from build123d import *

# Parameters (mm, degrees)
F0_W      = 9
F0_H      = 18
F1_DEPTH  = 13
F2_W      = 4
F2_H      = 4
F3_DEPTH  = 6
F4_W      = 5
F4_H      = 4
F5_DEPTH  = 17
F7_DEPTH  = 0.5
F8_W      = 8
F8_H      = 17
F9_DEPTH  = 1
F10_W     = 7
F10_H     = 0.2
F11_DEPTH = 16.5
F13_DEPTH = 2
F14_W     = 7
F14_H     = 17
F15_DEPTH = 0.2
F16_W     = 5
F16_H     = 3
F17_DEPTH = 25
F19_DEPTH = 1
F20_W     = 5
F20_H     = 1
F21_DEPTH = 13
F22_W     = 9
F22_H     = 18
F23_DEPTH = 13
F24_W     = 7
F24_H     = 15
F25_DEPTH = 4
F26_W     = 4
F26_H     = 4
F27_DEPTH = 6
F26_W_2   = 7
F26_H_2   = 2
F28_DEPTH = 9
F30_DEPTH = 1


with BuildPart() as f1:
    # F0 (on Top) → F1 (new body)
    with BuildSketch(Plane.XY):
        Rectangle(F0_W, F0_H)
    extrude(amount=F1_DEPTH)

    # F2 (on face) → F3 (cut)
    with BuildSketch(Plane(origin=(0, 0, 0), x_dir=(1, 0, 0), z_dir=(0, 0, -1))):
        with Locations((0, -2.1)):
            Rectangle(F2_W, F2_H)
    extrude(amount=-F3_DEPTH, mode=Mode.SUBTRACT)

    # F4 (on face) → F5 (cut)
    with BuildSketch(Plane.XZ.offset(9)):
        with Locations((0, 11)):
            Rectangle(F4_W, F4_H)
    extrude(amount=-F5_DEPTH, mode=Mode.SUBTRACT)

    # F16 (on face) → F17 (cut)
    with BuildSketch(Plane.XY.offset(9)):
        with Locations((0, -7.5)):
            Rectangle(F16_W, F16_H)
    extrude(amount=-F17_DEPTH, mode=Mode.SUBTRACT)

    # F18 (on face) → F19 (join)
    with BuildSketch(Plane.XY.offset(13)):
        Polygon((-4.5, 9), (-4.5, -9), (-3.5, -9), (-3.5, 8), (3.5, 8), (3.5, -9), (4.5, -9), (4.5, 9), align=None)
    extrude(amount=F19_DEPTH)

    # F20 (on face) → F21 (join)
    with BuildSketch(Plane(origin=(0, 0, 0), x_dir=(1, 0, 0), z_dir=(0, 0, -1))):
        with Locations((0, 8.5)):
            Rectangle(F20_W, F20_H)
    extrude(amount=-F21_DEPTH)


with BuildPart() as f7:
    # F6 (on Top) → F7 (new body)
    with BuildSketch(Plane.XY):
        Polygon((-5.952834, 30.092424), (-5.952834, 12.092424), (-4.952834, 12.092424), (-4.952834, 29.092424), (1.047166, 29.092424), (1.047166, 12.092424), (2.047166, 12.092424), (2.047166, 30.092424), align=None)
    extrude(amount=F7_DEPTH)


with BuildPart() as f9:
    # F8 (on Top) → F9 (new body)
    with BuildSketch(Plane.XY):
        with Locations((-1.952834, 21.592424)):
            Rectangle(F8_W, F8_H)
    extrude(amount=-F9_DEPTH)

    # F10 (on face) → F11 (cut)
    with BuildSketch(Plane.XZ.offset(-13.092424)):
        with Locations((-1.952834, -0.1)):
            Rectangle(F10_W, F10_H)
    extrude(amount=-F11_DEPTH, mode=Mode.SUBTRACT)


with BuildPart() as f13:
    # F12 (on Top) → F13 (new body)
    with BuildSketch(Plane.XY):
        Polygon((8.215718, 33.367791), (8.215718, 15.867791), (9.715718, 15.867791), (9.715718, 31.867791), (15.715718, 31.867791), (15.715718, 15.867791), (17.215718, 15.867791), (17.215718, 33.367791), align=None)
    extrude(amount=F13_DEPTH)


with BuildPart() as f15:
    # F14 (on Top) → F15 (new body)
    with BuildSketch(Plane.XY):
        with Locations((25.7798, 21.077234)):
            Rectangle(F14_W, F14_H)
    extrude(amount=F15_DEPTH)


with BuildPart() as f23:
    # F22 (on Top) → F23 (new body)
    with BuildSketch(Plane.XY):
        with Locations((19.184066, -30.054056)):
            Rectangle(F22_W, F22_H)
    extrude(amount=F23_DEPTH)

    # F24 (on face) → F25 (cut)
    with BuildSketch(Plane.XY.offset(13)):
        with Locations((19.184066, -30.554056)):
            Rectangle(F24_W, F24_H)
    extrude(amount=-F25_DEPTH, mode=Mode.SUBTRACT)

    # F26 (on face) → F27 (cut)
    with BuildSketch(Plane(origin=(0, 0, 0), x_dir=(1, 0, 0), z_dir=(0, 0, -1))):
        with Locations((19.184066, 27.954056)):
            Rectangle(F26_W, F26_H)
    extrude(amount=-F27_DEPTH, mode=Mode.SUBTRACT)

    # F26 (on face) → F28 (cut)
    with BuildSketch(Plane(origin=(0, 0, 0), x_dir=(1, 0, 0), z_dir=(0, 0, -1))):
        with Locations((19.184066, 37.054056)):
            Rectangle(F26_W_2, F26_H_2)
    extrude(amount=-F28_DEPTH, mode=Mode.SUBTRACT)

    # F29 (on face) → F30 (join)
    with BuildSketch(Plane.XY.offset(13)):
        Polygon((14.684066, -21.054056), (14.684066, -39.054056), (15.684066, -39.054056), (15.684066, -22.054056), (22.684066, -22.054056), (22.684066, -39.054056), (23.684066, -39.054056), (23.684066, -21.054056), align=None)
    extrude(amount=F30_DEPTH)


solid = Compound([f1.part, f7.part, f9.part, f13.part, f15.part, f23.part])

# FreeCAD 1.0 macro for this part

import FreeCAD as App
import Part
import Sketcher
from FreeCAD import Vector

doc = App.newDocument("Part")
body = doc.addObject("PartDesign::Body", "Body")

sketch1 = doc.addObject("Sketcher::SketchObject", "Sketch")
body.addObject(sketch1)
sketch1.AttachmentSupport = (doc.XY_Plane, [""])
sketch1.MapMode = "FlatFace"
sketch1.addGeometry([
    Part.LineSegment(Vector(-4, 9, 0), Vector(-4, -9, 0)),
    Part.LineSegment(Vector(-4, -9, 0), Vector(4, -9, 0)),
    Part.LineSegment(Vector(4, -9, 0), Vector(4, 9, 0)),
    Part.LineSegment(Vector(4, 9, 0), Vector(-4, 9, 0)),
], False)
sketch1.addConstraint([
    Sketcher.Constraint("Coincident", 0, 2, 1, 1),
    Sketcher.Constraint("Coincident", 1, 2, 2, 1),
    Sketcher.Constraint("Coincident", 2, 2, 3, 1),
    Sketcher.Constraint("Coincident", 3, 2, 0, 1),
    Sketcher.Constraint("Vertical", 0),
    Sketcher.Constraint("Horizontal", 1),
    Sketcher.Constraint("Vertical", 2),
    Sketcher.Constraint("Horizontal", 3),
    Sketcher.Constraint("Symmetric", 0, 2, 2, 2, -1, 1),
    Sketcher.Constraint("DistanceX", 1, 1, 1, 2, 9.0),
    Sketcher.Constraint("DistanceY", 0, 2, 0, 1, 18.0),
])
pad1 = doc.addObject("PartDesign::Pad", "Pad")
body.addObject(pad1)
pad1.Profile = sketch1
pad1.Length = 13

sketch2 = doc.addObject("Sketcher::SketchObject", "Sketch001")
body.addObject(sketch2)
sketch2.AttachmentSupport = (doc.XY_Plane, [""])
sketch2.MapMode = "FlatFace"
sketch2.addGeometry([
    Part.LineSegment(Vector(-2, 0.1, 0), Vector(-2, 4.1, 0)),
    Part.LineSegment(Vector(-2, 4.1, 0), Vector(2, 4.1, 0)),
    Part.LineSegment(Vector(2, 4.1, 0), Vector(2, 0.1, 0)),
    Part.LineSegment(Vector(2, 0.1, 0), Vector(-2, 0.1, 0)),
], False)
sketch2.addConstraint([
    Sketcher.Constraint("Coincident", 0, 2, 1, 1),
    Sketcher.Constraint("Coincident", 1, 2, 2, 1),
    Sketcher.Constraint("Coincident", 2, 2, 3, 1),
    Sketcher.Constraint("Coincident", 3, 2, 0, 1),
    Sketcher.Constraint("Vertical", 0),
    Sketcher.Constraint("Horizontal", 1),
    Sketcher.Constraint("Vertical", 2),
    Sketcher.Constraint("Horizontal", 3),
    Sketcher.Constraint("Equal", 3, 0),
    Sketcher.Constraint("DistanceX", 1, 1, 1, 2, 4.0),
    Sketcher.Constraint("DistanceX", 0, 2, -1, 1, 2.0),
    Sketcher.Constraint("DistanceY", -1, 1, 0, 2, 4.1),
])
pocket1 = doc.addObject("PartDesign::Pocket", "Pocket")
body.addObject(pocket1)
pocket1.Profile = sketch2
pocket1.Length = 6
pocket1.Reversed = True

sketch3 = doc.addObject("Sketcher::SketchObject", "Sketch002")
body.addObject(sketch3)
sketch3.AttachmentSupport = (doc.XZ_Plane, [""])
sketch3.MapMode = "FlatFace"
sketch3.AttachmentOffset = App.Placement(Vector(0, 0, 9), App.Rotation())
sketch3.addGeometry([
    Part.LineSegment(Vector(-2.5, 13, 0), Vector(-2.5, 9, 0)),
    Part.LineSegment(Vector(-2.5, 9, 0), Vector(2.5, 9, 0)),
    Part.LineSegment(Vector(2.5, 9, 0), Vector(2.5, 13, 0)),
    Part.LineSegment(Vector(2.5, 13, 0), Vector(-2.5, 13, 0)),
], False)
sketch3.addConstraint([
    Sketcher.Constraint("Coincident", 0, 2, 1, 1),
    Sketcher.Constraint("Coincident", 1, 2, 2, 1),
    Sketcher.Constraint("Coincident", 2, 2, 3, 1),
    Sketcher.Constraint("Coincident", 3, 2, 0, 1),
    Sketcher.Constraint("Vertical", 0),
    Sketcher.Constraint("Horizontal", 1),
    Sketcher.Constraint("Vertical", 2),
    Sketcher.Constraint("Horizontal", 3),
    Sketcher.Constraint("DistanceX", 1, 1, 1, 2, 5.0),
    Sketcher.Constraint("DistanceY", 0, 2, 0, 1, 4.0),
    Sketcher.Constraint("DistanceY", -1, 1, 0, 2, 9.0),
    Sketcher.Constraint("DistanceX", 0, 2, -1, 1, 2.5),
])
pocket2 = doc.addObject("PartDesign::Pocket", "Pocket001")
body.addObject(pocket2)
pocket2.Profile = sketch3
pocket2.Length = 17

sketch4 = doc.addObject("Sketcher::SketchObject", "Sketch003")
body.addObject(sketch4)
sketch4.AttachmentSupport = (doc.XY_Plane, [""])
sketch4.MapMode = "FlatFace"
sketch4.AttachmentOffset = App.Placement(Vector(0, 0, 9), App.Rotation())
sketch4.addGeometry([
    Part.LineSegment(Vector(-2.5, -6, 0), Vector(-2.5, -9, 0)),
    Part.LineSegment(Vector(-2.5, -9, 0), Vector(2.5, -9, 0)),
    Part.LineSegment(Vector(2.5, -9, 0), Vector(2.5, -6, 0)),
    Part.LineSegment(Vector(2.5, -6, 0), Vector(-2.5, -6, 0)),
], False)
sketch4.addConstraint([
    Sketcher.Constraint("Coincident", 0, 2, 1, 1),
    Sketcher.Constraint("Coincident", 1, 2, 2, 1),
    Sketcher.Constraint("Coincident", 2, 2, 3, 1),
    Sketcher.Constraint("Coincident", 3, 2, 0, 1),
    Sketcher.Constraint("Vertical", 0),
    Sketcher.Constraint("Horizontal", 1),
    Sketcher.Constraint("Vertical", 2),
    Sketcher.Constraint("Horizontal", 3),
    Sketcher.Constraint("DistanceX", 1, 1, 1, 2, 5.0),
    Sketcher.Constraint("DistanceY", 0, 2, 0, 1, 3.0),
    Sketcher.Constraint("DistanceY", 0, 2, -1, 1, 9.0),
    Sketcher.Constraint("DistanceX", 0, 2, -1, 1, 2.5),
])
pocket3 = doc.addObject("PartDesign::Pocket", "Pocket002")
body.addObject(pocket3)
pocket3.Profile = sketch4
pocket3.Length = 25

sketch5 = doc.addObject("Sketcher::SketchObject", "Sketch004")
body.addObject(sketch5)
sketch5.AttachmentSupport = (doc.XY_Plane, [""])
sketch5.MapMode = "FlatFace"
sketch5.AttachmentOffset = App.Placement(Vector(0, 0, 13), App.Rotation())
sketch5.addGeometry([
    Part.LineSegment(Vector(-4.5, 9, 0), Vector(-4.5, -9, 0)),
    Part.LineSegment(Vector(-4.5, -9, 0), Vector(-3.5, -9, 0)),
    Part.LineSegment(Vector(-3.5, -9, 0), Vector(-3.5, 8, 0)),
    Part.LineSegment(Vector(-3.5, 8, 0), Vector(3.5, 8, 0)),
    Part.LineSegment(Vector(3.5, 8, 0), Vector(3.5, -9, 0)),
    Part.LineSegment(Vector(3.5, -9, 0), Vector(4.5, -9, 0)),
    Part.LineSegment(Vector(4.5, -9, 0), Vector(4.5, 9, 0)),
    Part.LineSegment(Vector(4.5, 9, 0), Vector(-4.5, 9, 0)),
], False)
sketch5.addConstraint([
    Sketcher.Constraint("Coincident", 0, 2, 1, 1),
    Sketcher.Constraint("Coincident", 1, 2, 2, 1),
    Sketcher.Constraint("Coincident", 2, 2, 3, 1),
    Sketcher.Constraint("Coincident", 3, 2, 4, 1),
    Sketcher.Constraint("Coincident", 4, 2, 5, 1),
    Sketcher.Constraint("Coincident", 5, 2, 6, 1),
    Sketcher.Constraint("Coincident", 6, 2, 7, 1),
    Sketcher.Constraint("Coincident", 7, 2, 0, 1),
    Sketcher.Constraint("Vertical", 0),
    Sketcher.Constraint("Horizontal", 1),
    Sketcher.Constraint("Vertical", 2),
    Sketcher.Constraint("Horizontal", 3),
    Sketcher.Constraint("Vertical", 4),
    Sketcher.Constraint("Horizontal", 5),
    Sketcher.Constraint("Vertical", 6),
    Sketcher.Constraint("Horizontal", 7),
    Sketcher.Constraint("Symmetric", 0, 2, 6, 2, -1, 1),
    Sketcher.Constraint("Symmetric", 1, 2, 4, 2, -2),
    Sketcher.Constraint("DistanceX", 1, 1, 1, 2, 1.0),
    Sketcher.Constraint("DistanceX", 3, 1, 3, 2, 7.0),
    Sketcher.Constraint("DistanceY", 0, 2, 0, 1, 18.0),
    Sketcher.Constraint("DistanceY", 2, 1, 2, 2, 17.0),
])
pad2 = doc.addObject("PartDesign::Pad", "Pad001")
body.addObject(pad2)
pad2.Profile = sketch5
pad2.Length = 1

sketch6 = doc.addObject("Sketcher::SketchObject", "Sketch005")
body.addObject(sketch6)
sketch6.AttachmentSupport = (doc.XY_Plane, [""])
sketch6.MapMode = "FlatFace"
sketch6.addGeometry([
    Part.LineSegment(Vector(-2.5, -9, 0), Vector(-2.5, -8, 0)),
    Part.LineSegment(Vector(-2.5, -8, 0), Vector(2.5, -8, 0)),
    Part.LineSegment(Vector(2.5, -8, 0), Vector(2.5, -9, 0)),
    Part.LineSegment(Vector(2.5, -9, 0), Vector(-2.5, -9, 0)),
], False)
sketch6.addConstraint([
    Sketcher.Constraint("Coincident", 0, 2, 1, 1),
    Sketcher.Constraint("Coincident", 1, 2, 2, 1),
    Sketcher.Constraint("Coincident", 2, 2, 3, 1),
    Sketcher.Constraint("Coincident", 3, 2, 0, 1),
    Sketcher.Constraint("Vertical", 0),
    Sketcher.Constraint("Horizontal", 1),
    Sketcher.Constraint("Vertical", 2),
    Sketcher.Constraint("Horizontal", 3),
    Sketcher.Constraint("DistanceX", 1, 1, 1, 2, 5.0),
    Sketcher.Constraint("DistanceY", 0, 1, 0, 2, 1.0),
    Sketcher.Constraint("DistanceY", 0, 2, -1, 1, 8.0),
    Sketcher.Constraint("DistanceX", 0, 2, -1, 1, 2.5),
])
pad3 = doc.addObject("PartDesign::Pad", "Pad002")
body.addObject(pad3)
pad3.Profile = sketch6
pad3.Length = 13
body2 = doc.addObject("PartDesign::Body", "Body001")

sketch7 = doc.addObject("Sketcher::SketchObject", "Sketch006")
body2.addObject(sketch7)
sketch7.AttachmentSupport = (doc.getObject("XY_Plane001"), [""])
sketch7.MapMode = "FlatFace"
sketch7.addGeometry([
    Part.LineSegment(Vector(-6, 30.1, 0), Vector(-6, 12.1, 0)),
    Part.LineSegment(Vector(-6, 12.1, 0), Vector(-5, 12.1, 0)),
    Part.LineSegment(Vector(-5, 12.1, 0), Vector(-5, 29.1, 0)),
    Part.LineSegment(Vector(-5, 29.1, 0), Vector(1, 29.1, 0)),
    Part.LineSegment(Vector(1, 29.1, 0), Vector(1, 12.1, 0)),
    Part.LineSegment(Vector(1, 12.1, 0), Vector(2, 12.1, 0)),
    Part.LineSegment(Vector(2, 12.1, 0), Vector(2, 30.1, 0)),
    Part.LineSegment(Vector(2, 30.1, 0), Vector(-6, 30.1, 0)),
], False)
sketch7.addConstraint([
    Sketcher.Constraint("Coincident", 0, 2, 1, 1),
    Sketcher.Constraint("Coincident", 1, 2, 2, 1),
    Sketcher.Constraint("Coincident", 2, 2, 3, 1),
    Sketcher.Constraint("Coincident", 3, 2, 4, 1),
    Sketcher.Constraint("Coincident", 4, 2, 5, 1),
    Sketcher.Constraint("Coincident", 5, 2, 6, 1),
    Sketcher.Constraint("Coincident", 6, 2, 7, 1),
    Sketcher.Constraint("Coincident", 7, 2, 0, 1),
    Sketcher.Constraint("Vertical", 0),
    Sketcher.Constraint("Horizontal", 1),
    Sketcher.Constraint("Vertical", 2),
    Sketcher.Constraint("Horizontal", 3),
    Sketcher.Constraint("Vertical", 4),
    Sketcher.Constraint("Horizontal", 5),
    Sketcher.Constraint("Vertical", 6),
    Sketcher.Constraint("Horizontal", 7),
    Sketcher.Constraint("Horizontal", 1, 2, 4, 2),
    Sketcher.Constraint("Equal", 1, 5),
    Sketcher.Constraint("DistanceX", 1, 1, 1, 2, 1.0),
    Sketcher.Constraint("DistanceX", 3, 1, 3, 2, 6.0),
    Sketcher.Constraint("DistanceY", 0, 2, 0, 1, 18.0),
    Sketcher.Constraint("DistanceY", 2, 1, 2, 2, 17.0),
    Sketcher.Constraint("DistanceX", 0, 2, -1, 1, 5.952834),
    Sketcher.Constraint("DistanceY", -1, 1, 0, 2, 12.092424),
])
pad4 = doc.addObject("PartDesign::Pad", "Pad003")
body2.addObject(pad4)
pad4.Profile = sketch7
pad4.Length = 0.5
body3 = doc.addObject("PartDesign::Body", "Body002")

sketch8 = doc.addObject("Sketcher::SketchObject", "Sketch007")
body3.addObject(sketch8)
sketch8.AttachmentSupport = (doc.getObject("XY_Plane002"), [""])
sketch8.MapMode = "FlatFace"
sketch8.addGeometry([
    Part.LineSegment(Vector(-6, 30, 0), Vector(-6, 13, 0)),
    Part.LineSegment(Vector(-6, 13, 0), Vector(2, 13, 0)),
    Part.LineSegment(Vector(2, 13, 0), Vector(2, 30, 0)),
    Part.LineSegment(Vector(2, 30, 0), Vector(-6, 30, 0)),
], False)
sketch8.addConstraint([
    Sketcher.Constraint("Coincident", 0, 2, 1, 1),
    Sketcher.Constraint("Coincident", 1, 2, 2, 1),
    Sketcher.Constraint("Coincident", 2, 2, 3, 1),
    Sketcher.Constraint("Coincident", 3, 2, 0, 1),
    Sketcher.Constraint("Vertical", 0),
    Sketcher.Constraint("Horizontal", 1),
    Sketcher.Constraint("Vertical", 2),
    Sketcher.Constraint("Horizontal", 3),
    Sketcher.Constraint("DistanceX", 1, 1, 1, 2, 8.0),
    Sketcher.Constraint("DistanceY", 0, 2, 0, 1, 17.0),
    Sketcher.Constraint("DistanceX", 0, 2, -1, 1, 5.952834),
    Sketcher.Constraint("DistanceY", -1, 1, 0, 2, 13.092424),
])
pad5 = doc.addObject("PartDesign::Pad", "Pad004")
body3.addObject(pad5)
pad5.Profile = sketch8
pad5.Length = 1
pad5.Reversed = True

sketch9 = doc.addObject("Sketcher::SketchObject", "Sketch008")
body3.addObject(sketch9)
sketch9.AttachmentSupport = (doc.getObject("XZ_Plane002"), [""])
sketch9.MapMode = "FlatFace"
sketch9.AttachmentOffset = App.Placement(Vector(0, 0, -13.092424), App.Rotation())
sketch9.addGeometry([
    Part.LineSegment(Vector(-5.45, 0, 0), Vector(-5.45, -0.2, 0)),
    Part.LineSegment(Vector(-5.45, -0.2, 0), Vector(1.55, -0.2, 0)),
    Part.LineSegment(Vector(1.55, -0.2, 0), Vector(1.55, 0, 0)),
    Part.LineSegment(Vector(1.55, 0, 0), Vector(-5.45, 0, 0)),
], False)
sketch9.addConstraint([
    Sketcher.Constraint("Coincident", 0, 2, 1, 1),
    Sketcher.Constraint("Coincident", 1, 2, 2, 1),
    Sketcher.Constraint("Coincident", 2, 2, 3, 1),
    Sketcher.Constraint("Coincident", 3, 2, 0, 1),
    Sketcher.Constraint("Vertical", 0),
    Sketcher.Constraint("Horizontal", 1),
    Sketcher.Constraint("Vertical", 2),
    Sketcher.Constraint("Horizontal", 3),
    Sketcher.Constraint("PointOnObject", 2, 2, -1),
    Sketcher.Constraint("DistanceX", 1, 1, 1, 2, 7.0),
    Sketcher.Constraint("DistanceY", 0, 2, 0, 1, 0.2),
    Sketcher.Constraint("DistanceX", 0, 2, -1, 1, 5.452834),
])
pocket4 = doc.addObject("PartDesign::Pocket", "Pocket003")
body3.addObject(pocket4)
pocket4.Profile = sketch9
pocket4.Length = 16.5
body4 = doc.addObject("PartDesign::Body", "Body003")

sketch10 = doc.addObject("Sketcher::SketchObject", "Sketch009")
body4.addObject(sketch10)
sketch10.AttachmentSupport = (doc.getObject("XY_Plane003"), [""])
sketch10.MapMode = "FlatFace"
sketch10.addGeometry([
    Part.LineSegment(Vector(8.2, 33.4, 0), Vector(8.2, 15.9, 0)),
    Part.LineSegment(Vector(8.2, 15.9, 0), Vector(9.7, 15.9, 0)),
    Part.LineSegment(Vector(9.7, 15.9, 0), Vector(9.7, 31.9, 0)),
    Part.LineSegment(Vector(9.7, 31.9, 0), Vector(15.7, 31.9, 0)),
    Part.LineSegment(Vector(15.7, 31.9, 0), Vector(15.7, 15.9, 0)),
    Part.LineSegment(Vector(15.7, 15.9, 0), Vector(17.2, 15.9, 0)),
    Part.LineSegment(Vector(17.2, 15.9, 0), Vector(17.2, 33.4, 0)),
    Part.LineSegment(Vector(17.2, 33.4, 0), Vector(8.2, 33.4, 0)),
], False)
sketch10.addConstraint([
    Sketcher.Constraint("Coincident", 0, 2, 1, 1),
    Sketcher.Constraint("Coincident", 1, 2, 2, 1),
    Sketcher.Constraint("Coincident", 2, 2, 3, 1),
    Sketcher.Constraint("Coincident", 3, 2, 4, 1),
    Sketcher.Constraint("Coincident", 4, 2, 5, 1),
    Sketcher.Constraint("Coincident", 5, 2, 6, 1),
    Sketcher.Constraint("Coincident", 6, 2, 7, 1),
    Sketcher.Constraint("Coincident", 7, 2, 0, 1),
    Sketcher.Constraint("Vertical", 0),
    Sketcher.Constraint("Horizontal", 1),
    Sketcher.Constraint("Vertical", 2),
    Sketcher.Constraint("Horizontal", 3),
    Sketcher.Constraint("Vertical", 4),
    Sketcher.Constraint("Horizontal", 5),
    Sketcher.Constraint("Vertical", 6),
    Sketcher.Constraint("Horizontal", 7),
    Sketcher.Constraint("Horizontal", 1, 2, 4, 2),
    Sketcher.Constraint("Equal", 1, 5),
    Sketcher.Constraint("DistanceX", 3, 1, 3, 2, 6.0),
    Sketcher.Constraint("DistanceX", 7, 2, 7, 1, 9.0),
    Sketcher.Constraint("DistanceY", 2, 1, 2, 2, 16.0),
    Sketcher.Constraint("DistanceY", 0, 2, 0, 1, 17.5),
    Sketcher.Constraint("DistanceX", -1, 1, 0, 2, 8.215718),
    Sketcher.Constraint("DistanceY", -1, 1, 0, 2, 15.867791),
])
pad6 = doc.addObject("PartDesign::Pad", "Pad005")
body4.addObject(pad6)
pad6.Profile = sketch10
pad6.Length = 2
body5 = doc.addObject("PartDesign::Body", "Body004")

sketch11 = doc.addObject("Sketcher::SketchObject", "Sketch010")
body5.addObject(sketch11)
sketch11.AttachmentSupport = (doc.getObject("XY_Plane004"), [""])
sketch11.MapMode = "FlatFace"
sketch11.addGeometry([
    Part.LineSegment(Vector(22, 30, 0), Vector(22, 13, 0)),
    Part.LineSegment(Vector(22, 13, 0), Vector(29, 13, 0)),
    Part.LineSegment(Vector(29, 13, 0), Vector(29, 30, 0)),
    Part.LineSegment(Vector(29, 30, 0), Vector(22, 30, 0)),
], False)
sketch11.addConstraint([
    Sketcher.Constraint("Coincident", 0, 2, 1, 1),
    Sketcher.Constraint("Coincident", 1, 2, 2, 1),
    Sketcher.Constraint("Coincident", 2, 2, 3, 1),
    Sketcher.Constraint("Coincident", 3, 2, 0, 1),
    Sketcher.Constraint("Vertical", 0),
    Sketcher.Constraint("Horizontal", 1),
    Sketcher.Constraint("Vertical", 2),
    Sketcher.Constraint("Horizontal", 3),
    Sketcher.Constraint("DistanceX", 1, 1, 1, 2, 7.0),
    Sketcher.Constraint("DistanceY", 0, 2, 0, 1, 17.0),
    Sketcher.Constraint("DistanceX", -1, 1, 0, 2, 22.2798),
    Sketcher.Constraint("DistanceY", -1, 1, 0, 2, 12.577234),
])
pad7 = doc.addObject("PartDesign::Pad", "Pad006")
body5.addObject(pad7)
pad7.Profile = sketch11
pad7.Length = 0.2
body6 = doc.addObject("PartDesign::Body", "Body005")

sketch12 = doc.addObject("Sketcher::SketchObject", "Sketch011")
body6.addObject(sketch12)
sketch12.AttachmentSupport = (doc.getObject("XY_Plane005"), [""])
sketch12.MapMode = "FlatFace"
sketch12.addGeometry([
    Part.LineSegment(Vector(15, -21, 0), Vector(15, -39, 0)),
    Part.LineSegment(Vector(15, -39, 0), Vector(24, -39, 0)),
    Part.LineSegment(Vector(24, -39, 0), Vector(24, -21, 0)),
    Part.LineSegment(Vector(24, -21, 0), Vector(15, -21, 0)),
], False)
sketch12.addConstraint([
    Sketcher.Constraint("Coincident", 0, 2, 1, 1),
    Sketcher.Constraint("Coincident", 1, 2, 2, 1),
    Sketcher.Constraint("Coincident", 2, 2, 3, 1),
    Sketcher.Constraint("Coincident", 3, 2, 0, 1),
    Sketcher.Constraint("Vertical", 0),
    Sketcher.Constraint("Horizontal", 1),
    Sketcher.Constraint("Vertical", 2),
    Sketcher.Constraint("Horizontal", 3),
    Sketcher.Constraint("DistanceX", 1, 1, 1, 2, 9.0),
    Sketcher.Constraint("DistanceY", 0, 2, 0, 1, 18.0),
    Sketcher.Constraint("DistanceX", -1, 1, 0, 2, 14.684066),
    Sketcher.Constraint("DistanceY", 0, 2, -1, 1, 39.054056),
])
pad8 = doc.addObject("PartDesign::Pad", "Pad007")
body6.addObject(pad8)
pad8.Profile = sketch12
pad8.Length = 13

sketch13 = doc.addObject("Sketcher::SketchObject", "Sketch012")
body6.addObject(sketch13)
sketch13.AttachmentSupport = (doc.getObject("XY_Plane005"), [""])
sketch13.MapMode = "FlatFace"
sketch13.AttachmentOffset = App.Placement(Vector(0, 0, 13), App.Rotation())
sketch13.addGeometry([
    Part.LineSegment(Vector(16, -23, 0), Vector(16, -38, 0)),
    Part.LineSegment(Vector(16, -38, 0), Vector(23, -38, 0)),
    Part.LineSegment(Vector(23, -38, 0), Vector(23, -23, 0)),
    Part.LineSegment(Vector(23, -23, 0), Vector(16, -23, 0)),
], False)
sketch13.addConstraint([
    Sketcher.Constraint("Coincident", 0, 2, 1, 1),
    Sketcher.Constraint("Coincident", 1, 2, 2, 1),
    Sketcher.Constraint("Coincident", 2, 2, 3, 1),
    Sketcher.Constraint("Coincident", 3, 2, 0, 1),
    Sketcher.Constraint("Vertical", 0),
    Sketcher.Constraint("Horizontal", 1),
    Sketcher.Constraint("Vertical", 2),
    Sketcher.Constraint("Horizontal", 3),
    Sketcher.Constraint("DistanceX", 1, 1, 1, 2, 7.0),
    Sketcher.Constraint("DistanceY", 0, 2, 0, 1, 15.0),
    Sketcher.Constraint("DistanceX", -1, 1, 0, 2, 15.684066),
    Sketcher.Constraint("DistanceY", 0, 2, -1, 1, 38.054056),
])
pocket5 = doc.addObject("PartDesign::Pocket", "Pocket004")
body6.addObject(pocket5)
pocket5.Profile = sketch13
pocket5.Length = 4

sketch14 = doc.addObject("Sketcher::SketchObject", "Sketch013")
body6.addObject(sketch14)
sketch14.AttachmentSupport = (doc.getObject("XY_Plane005"), [""])
sketch14.MapMode = "FlatFace"
sketch14.addGeometry([
    Part.LineSegment(Vector(17.2, -30, 0), Vector(17.2, -26, 0)),
    Part.LineSegment(Vector(17.2, -26, 0), Vector(21.2, -26, 0)),
    Part.LineSegment(Vector(21.2, -26, 0), Vector(21.2, -30, 0)),
    Part.LineSegment(Vector(21.2, -30, 0), Vector(17.2, -30, 0)),
], False)
sketch14.addConstraint([
    Sketcher.Constraint("Coincident", 0, 2, 1, 1),
    Sketcher.Constraint("Coincident", 1, 2, 2, 1),
    Sketcher.Constraint("Coincident", 2, 2, 3, 1),
    Sketcher.Constraint("Coincident", 3, 2, 0, 1),
    Sketcher.Constraint("Vertical", 0),
    Sketcher.Constraint("Horizontal", 1),
    Sketcher.Constraint("Vertical", 2),
    Sketcher.Constraint("Horizontal", 3),
    Sketcher.Constraint("Equal", 3, 0),
    Sketcher.Constraint("DistanceX", 1, 1, 1, 2, 4.0),
    Sketcher.Constraint("DistanceX", -1, 1, 0, 2, 17.184066),
    Sketcher.Constraint("DistanceY", 0, 2, -1, 1, 25.954056),
])
pocket6 = doc.addObject("PartDesign::Pocket", "Pocket005")
body6.addObject(pocket6)
pocket6.Profile = sketch14
pocket6.Length = 6
pocket6.Reversed = True

sketch15 = doc.addObject("Sketcher::SketchObject", "Sketch014")
body6.addObject(sketch15)
sketch15.AttachmentSupport = (doc.getObject("XY_Plane005"), [""])
sketch15.MapMode = "FlatFace"
sketch15.addGeometry([
    Part.LineSegment(Vector(15.7, -38.1, 0), Vector(15.7, -36.1, 0)),
    Part.LineSegment(Vector(15.7, -36.1, 0), Vector(22.7, -36.1, 0)),
    Part.LineSegment(Vector(22.7, -36.1, 0), Vector(22.7, -38.1, 0)),
    Part.LineSegment(Vector(22.7, -38.1, 0), Vector(15.7, -38.1, 0)),
], False)
sketch15.addConstraint([
    Sketcher.Constraint("Coincident", 0, 2, 1, 1),
    Sketcher.Constraint("Coincident", 1, 2, 2, 1),
    Sketcher.Constraint("Coincident", 2, 2, 3, 1),
    Sketcher.Constraint("Coincident", 3, 2, 0, 1),
    Sketcher.Constraint("Vertical", 0),
    Sketcher.Constraint("Horizontal", 1),
    Sketcher.Constraint("Vertical", 2),
    Sketcher.Constraint("Horizontal", 3),
    Sketcher.Constraint("DistanceX", 1, 1, 1, 2, 7.0),
    Sketcher.Constraint("DistanceY", 0, 1, 0, 2, 2.0),
    Sketcher.Constraint("DistanceX", -1, 1, 0, 2, 15.684066),
    Sketcher.Constraint("DistanceY", 0, 2, -1, 1, 36.054056),
])
pocket7 = doc.addObject("PartDesign::Pocket", "Pocket006")
body6.addObject(pocket7)
pocket7.Profile = sketch15
pocket7.Length = 9
pocket7.Reversed = True

sketch16 = doc.addObject("Sketcher::SketchObject", "Sketch015")
body6.addObject(sketch16)
sketch16.AttachmentSupport = (doc.getObject("XY_Plane005"), [""])
sketch16.MapMode = "FlatFace"
sketch16.AttachmentOffset = App.Placement(Vector(0, 0, 13), App.Rotation())
sketch16.addGeometry([
    Part.LineSegment(Vector(14.7, -21.1, 0), Vector(14.7, -39.1, 0)),
    Part.LineSegment(Vector(14.7, -39.1, 0), Vector(15.7, -39.1, 0)),
    Part.LineSegment(Vector(15.7, -39.1, 0), Vector(15.7, -22.1, 0)),
    Part.LineSegment(Vector(15.7, -22.1, 0), Vector(22.7, -22.1, 0)),
    Part.LineSegment(Vector(22.7, -22.1, 0), Vector(22.7, -39.1, 0)),
    Part.LineSegment(Vector(22.7, -39.1, 0), Vector(23.7, -39.1, 0)),
    Part.LineSegment(Vector(23.7, -39.1, 0), Vector(23.7, -21.1, 0)),
    Part.LineSegment(Vector(23.7, -21.1, 0), Vector(14.7, -21.1, 0)),
], False)
sketch16.addConstraint([
    Sketcher.Constraint("Coincident", 0, 2, 1, 1),
    Sketcher.Constraint("Coincident", 1, 2, 2, 1),
    Sketcher.Constraint("Coincident", 2, 2, 3, 1),
    Sketcher.Constraint("Coincident", 3, 2, 4, 1),
    Sketcher.Constraint("Coincident", 4, 2, 5, 1),
    Sketcher.Constraint("Coincident", 5, 2, 6, 1),
    Sketcher.Constraint("Coincident", 6, 2, 7, 1),
    Sketcher.Constraint("Coincident", 7, 2, 0, 1),
    Sketcher.Constraint("Vertical", 0),
    Sketcher.Constraint("Horizontal", 1),
    Sketcher.Constraint("Vertical", 2),
    Sketcher.Constraint("Horizontal", 3),
    Sketcher.Constraint("Vertical", 4),
    Sketcher.Constraint("Horizontal", 5),
    Sketcher.Constraint("Vertical", 6),
    Sketcher.Constraint("Horizontal", 7),
    Sketcher.Constraint("Horizontal", 1, 2, 4, 2),
    Sketcher.Constraint("Equal", 1, 5),
    Sketcher.Constraint("DistanceX", 1, 1, 1, 2, 1.0),
    Sketcher.Constraint("DistanceX", 3, 1, 3, 2, 7.0),
    Sketcher.Constraint("DistanceY", 0, 2, 0, 1, 18.0),
    Sketcher.Constraint("DistanceY", 2, 1, 2, 2, 17.0),
    Sketcher.Constraint("DistanceX", -1, 1, 0, 2, 14.684066),
    Sketcher.Constraint("DistanceY", 0, 2, -1, 1, 39.054056),
])
pad9 = doc.addObject("PartDesign::Pad", "Pad008")
body6.addObject(pad9)
pad9.Profile = sketch16
pad9.Length = 1

doc.recompute()
